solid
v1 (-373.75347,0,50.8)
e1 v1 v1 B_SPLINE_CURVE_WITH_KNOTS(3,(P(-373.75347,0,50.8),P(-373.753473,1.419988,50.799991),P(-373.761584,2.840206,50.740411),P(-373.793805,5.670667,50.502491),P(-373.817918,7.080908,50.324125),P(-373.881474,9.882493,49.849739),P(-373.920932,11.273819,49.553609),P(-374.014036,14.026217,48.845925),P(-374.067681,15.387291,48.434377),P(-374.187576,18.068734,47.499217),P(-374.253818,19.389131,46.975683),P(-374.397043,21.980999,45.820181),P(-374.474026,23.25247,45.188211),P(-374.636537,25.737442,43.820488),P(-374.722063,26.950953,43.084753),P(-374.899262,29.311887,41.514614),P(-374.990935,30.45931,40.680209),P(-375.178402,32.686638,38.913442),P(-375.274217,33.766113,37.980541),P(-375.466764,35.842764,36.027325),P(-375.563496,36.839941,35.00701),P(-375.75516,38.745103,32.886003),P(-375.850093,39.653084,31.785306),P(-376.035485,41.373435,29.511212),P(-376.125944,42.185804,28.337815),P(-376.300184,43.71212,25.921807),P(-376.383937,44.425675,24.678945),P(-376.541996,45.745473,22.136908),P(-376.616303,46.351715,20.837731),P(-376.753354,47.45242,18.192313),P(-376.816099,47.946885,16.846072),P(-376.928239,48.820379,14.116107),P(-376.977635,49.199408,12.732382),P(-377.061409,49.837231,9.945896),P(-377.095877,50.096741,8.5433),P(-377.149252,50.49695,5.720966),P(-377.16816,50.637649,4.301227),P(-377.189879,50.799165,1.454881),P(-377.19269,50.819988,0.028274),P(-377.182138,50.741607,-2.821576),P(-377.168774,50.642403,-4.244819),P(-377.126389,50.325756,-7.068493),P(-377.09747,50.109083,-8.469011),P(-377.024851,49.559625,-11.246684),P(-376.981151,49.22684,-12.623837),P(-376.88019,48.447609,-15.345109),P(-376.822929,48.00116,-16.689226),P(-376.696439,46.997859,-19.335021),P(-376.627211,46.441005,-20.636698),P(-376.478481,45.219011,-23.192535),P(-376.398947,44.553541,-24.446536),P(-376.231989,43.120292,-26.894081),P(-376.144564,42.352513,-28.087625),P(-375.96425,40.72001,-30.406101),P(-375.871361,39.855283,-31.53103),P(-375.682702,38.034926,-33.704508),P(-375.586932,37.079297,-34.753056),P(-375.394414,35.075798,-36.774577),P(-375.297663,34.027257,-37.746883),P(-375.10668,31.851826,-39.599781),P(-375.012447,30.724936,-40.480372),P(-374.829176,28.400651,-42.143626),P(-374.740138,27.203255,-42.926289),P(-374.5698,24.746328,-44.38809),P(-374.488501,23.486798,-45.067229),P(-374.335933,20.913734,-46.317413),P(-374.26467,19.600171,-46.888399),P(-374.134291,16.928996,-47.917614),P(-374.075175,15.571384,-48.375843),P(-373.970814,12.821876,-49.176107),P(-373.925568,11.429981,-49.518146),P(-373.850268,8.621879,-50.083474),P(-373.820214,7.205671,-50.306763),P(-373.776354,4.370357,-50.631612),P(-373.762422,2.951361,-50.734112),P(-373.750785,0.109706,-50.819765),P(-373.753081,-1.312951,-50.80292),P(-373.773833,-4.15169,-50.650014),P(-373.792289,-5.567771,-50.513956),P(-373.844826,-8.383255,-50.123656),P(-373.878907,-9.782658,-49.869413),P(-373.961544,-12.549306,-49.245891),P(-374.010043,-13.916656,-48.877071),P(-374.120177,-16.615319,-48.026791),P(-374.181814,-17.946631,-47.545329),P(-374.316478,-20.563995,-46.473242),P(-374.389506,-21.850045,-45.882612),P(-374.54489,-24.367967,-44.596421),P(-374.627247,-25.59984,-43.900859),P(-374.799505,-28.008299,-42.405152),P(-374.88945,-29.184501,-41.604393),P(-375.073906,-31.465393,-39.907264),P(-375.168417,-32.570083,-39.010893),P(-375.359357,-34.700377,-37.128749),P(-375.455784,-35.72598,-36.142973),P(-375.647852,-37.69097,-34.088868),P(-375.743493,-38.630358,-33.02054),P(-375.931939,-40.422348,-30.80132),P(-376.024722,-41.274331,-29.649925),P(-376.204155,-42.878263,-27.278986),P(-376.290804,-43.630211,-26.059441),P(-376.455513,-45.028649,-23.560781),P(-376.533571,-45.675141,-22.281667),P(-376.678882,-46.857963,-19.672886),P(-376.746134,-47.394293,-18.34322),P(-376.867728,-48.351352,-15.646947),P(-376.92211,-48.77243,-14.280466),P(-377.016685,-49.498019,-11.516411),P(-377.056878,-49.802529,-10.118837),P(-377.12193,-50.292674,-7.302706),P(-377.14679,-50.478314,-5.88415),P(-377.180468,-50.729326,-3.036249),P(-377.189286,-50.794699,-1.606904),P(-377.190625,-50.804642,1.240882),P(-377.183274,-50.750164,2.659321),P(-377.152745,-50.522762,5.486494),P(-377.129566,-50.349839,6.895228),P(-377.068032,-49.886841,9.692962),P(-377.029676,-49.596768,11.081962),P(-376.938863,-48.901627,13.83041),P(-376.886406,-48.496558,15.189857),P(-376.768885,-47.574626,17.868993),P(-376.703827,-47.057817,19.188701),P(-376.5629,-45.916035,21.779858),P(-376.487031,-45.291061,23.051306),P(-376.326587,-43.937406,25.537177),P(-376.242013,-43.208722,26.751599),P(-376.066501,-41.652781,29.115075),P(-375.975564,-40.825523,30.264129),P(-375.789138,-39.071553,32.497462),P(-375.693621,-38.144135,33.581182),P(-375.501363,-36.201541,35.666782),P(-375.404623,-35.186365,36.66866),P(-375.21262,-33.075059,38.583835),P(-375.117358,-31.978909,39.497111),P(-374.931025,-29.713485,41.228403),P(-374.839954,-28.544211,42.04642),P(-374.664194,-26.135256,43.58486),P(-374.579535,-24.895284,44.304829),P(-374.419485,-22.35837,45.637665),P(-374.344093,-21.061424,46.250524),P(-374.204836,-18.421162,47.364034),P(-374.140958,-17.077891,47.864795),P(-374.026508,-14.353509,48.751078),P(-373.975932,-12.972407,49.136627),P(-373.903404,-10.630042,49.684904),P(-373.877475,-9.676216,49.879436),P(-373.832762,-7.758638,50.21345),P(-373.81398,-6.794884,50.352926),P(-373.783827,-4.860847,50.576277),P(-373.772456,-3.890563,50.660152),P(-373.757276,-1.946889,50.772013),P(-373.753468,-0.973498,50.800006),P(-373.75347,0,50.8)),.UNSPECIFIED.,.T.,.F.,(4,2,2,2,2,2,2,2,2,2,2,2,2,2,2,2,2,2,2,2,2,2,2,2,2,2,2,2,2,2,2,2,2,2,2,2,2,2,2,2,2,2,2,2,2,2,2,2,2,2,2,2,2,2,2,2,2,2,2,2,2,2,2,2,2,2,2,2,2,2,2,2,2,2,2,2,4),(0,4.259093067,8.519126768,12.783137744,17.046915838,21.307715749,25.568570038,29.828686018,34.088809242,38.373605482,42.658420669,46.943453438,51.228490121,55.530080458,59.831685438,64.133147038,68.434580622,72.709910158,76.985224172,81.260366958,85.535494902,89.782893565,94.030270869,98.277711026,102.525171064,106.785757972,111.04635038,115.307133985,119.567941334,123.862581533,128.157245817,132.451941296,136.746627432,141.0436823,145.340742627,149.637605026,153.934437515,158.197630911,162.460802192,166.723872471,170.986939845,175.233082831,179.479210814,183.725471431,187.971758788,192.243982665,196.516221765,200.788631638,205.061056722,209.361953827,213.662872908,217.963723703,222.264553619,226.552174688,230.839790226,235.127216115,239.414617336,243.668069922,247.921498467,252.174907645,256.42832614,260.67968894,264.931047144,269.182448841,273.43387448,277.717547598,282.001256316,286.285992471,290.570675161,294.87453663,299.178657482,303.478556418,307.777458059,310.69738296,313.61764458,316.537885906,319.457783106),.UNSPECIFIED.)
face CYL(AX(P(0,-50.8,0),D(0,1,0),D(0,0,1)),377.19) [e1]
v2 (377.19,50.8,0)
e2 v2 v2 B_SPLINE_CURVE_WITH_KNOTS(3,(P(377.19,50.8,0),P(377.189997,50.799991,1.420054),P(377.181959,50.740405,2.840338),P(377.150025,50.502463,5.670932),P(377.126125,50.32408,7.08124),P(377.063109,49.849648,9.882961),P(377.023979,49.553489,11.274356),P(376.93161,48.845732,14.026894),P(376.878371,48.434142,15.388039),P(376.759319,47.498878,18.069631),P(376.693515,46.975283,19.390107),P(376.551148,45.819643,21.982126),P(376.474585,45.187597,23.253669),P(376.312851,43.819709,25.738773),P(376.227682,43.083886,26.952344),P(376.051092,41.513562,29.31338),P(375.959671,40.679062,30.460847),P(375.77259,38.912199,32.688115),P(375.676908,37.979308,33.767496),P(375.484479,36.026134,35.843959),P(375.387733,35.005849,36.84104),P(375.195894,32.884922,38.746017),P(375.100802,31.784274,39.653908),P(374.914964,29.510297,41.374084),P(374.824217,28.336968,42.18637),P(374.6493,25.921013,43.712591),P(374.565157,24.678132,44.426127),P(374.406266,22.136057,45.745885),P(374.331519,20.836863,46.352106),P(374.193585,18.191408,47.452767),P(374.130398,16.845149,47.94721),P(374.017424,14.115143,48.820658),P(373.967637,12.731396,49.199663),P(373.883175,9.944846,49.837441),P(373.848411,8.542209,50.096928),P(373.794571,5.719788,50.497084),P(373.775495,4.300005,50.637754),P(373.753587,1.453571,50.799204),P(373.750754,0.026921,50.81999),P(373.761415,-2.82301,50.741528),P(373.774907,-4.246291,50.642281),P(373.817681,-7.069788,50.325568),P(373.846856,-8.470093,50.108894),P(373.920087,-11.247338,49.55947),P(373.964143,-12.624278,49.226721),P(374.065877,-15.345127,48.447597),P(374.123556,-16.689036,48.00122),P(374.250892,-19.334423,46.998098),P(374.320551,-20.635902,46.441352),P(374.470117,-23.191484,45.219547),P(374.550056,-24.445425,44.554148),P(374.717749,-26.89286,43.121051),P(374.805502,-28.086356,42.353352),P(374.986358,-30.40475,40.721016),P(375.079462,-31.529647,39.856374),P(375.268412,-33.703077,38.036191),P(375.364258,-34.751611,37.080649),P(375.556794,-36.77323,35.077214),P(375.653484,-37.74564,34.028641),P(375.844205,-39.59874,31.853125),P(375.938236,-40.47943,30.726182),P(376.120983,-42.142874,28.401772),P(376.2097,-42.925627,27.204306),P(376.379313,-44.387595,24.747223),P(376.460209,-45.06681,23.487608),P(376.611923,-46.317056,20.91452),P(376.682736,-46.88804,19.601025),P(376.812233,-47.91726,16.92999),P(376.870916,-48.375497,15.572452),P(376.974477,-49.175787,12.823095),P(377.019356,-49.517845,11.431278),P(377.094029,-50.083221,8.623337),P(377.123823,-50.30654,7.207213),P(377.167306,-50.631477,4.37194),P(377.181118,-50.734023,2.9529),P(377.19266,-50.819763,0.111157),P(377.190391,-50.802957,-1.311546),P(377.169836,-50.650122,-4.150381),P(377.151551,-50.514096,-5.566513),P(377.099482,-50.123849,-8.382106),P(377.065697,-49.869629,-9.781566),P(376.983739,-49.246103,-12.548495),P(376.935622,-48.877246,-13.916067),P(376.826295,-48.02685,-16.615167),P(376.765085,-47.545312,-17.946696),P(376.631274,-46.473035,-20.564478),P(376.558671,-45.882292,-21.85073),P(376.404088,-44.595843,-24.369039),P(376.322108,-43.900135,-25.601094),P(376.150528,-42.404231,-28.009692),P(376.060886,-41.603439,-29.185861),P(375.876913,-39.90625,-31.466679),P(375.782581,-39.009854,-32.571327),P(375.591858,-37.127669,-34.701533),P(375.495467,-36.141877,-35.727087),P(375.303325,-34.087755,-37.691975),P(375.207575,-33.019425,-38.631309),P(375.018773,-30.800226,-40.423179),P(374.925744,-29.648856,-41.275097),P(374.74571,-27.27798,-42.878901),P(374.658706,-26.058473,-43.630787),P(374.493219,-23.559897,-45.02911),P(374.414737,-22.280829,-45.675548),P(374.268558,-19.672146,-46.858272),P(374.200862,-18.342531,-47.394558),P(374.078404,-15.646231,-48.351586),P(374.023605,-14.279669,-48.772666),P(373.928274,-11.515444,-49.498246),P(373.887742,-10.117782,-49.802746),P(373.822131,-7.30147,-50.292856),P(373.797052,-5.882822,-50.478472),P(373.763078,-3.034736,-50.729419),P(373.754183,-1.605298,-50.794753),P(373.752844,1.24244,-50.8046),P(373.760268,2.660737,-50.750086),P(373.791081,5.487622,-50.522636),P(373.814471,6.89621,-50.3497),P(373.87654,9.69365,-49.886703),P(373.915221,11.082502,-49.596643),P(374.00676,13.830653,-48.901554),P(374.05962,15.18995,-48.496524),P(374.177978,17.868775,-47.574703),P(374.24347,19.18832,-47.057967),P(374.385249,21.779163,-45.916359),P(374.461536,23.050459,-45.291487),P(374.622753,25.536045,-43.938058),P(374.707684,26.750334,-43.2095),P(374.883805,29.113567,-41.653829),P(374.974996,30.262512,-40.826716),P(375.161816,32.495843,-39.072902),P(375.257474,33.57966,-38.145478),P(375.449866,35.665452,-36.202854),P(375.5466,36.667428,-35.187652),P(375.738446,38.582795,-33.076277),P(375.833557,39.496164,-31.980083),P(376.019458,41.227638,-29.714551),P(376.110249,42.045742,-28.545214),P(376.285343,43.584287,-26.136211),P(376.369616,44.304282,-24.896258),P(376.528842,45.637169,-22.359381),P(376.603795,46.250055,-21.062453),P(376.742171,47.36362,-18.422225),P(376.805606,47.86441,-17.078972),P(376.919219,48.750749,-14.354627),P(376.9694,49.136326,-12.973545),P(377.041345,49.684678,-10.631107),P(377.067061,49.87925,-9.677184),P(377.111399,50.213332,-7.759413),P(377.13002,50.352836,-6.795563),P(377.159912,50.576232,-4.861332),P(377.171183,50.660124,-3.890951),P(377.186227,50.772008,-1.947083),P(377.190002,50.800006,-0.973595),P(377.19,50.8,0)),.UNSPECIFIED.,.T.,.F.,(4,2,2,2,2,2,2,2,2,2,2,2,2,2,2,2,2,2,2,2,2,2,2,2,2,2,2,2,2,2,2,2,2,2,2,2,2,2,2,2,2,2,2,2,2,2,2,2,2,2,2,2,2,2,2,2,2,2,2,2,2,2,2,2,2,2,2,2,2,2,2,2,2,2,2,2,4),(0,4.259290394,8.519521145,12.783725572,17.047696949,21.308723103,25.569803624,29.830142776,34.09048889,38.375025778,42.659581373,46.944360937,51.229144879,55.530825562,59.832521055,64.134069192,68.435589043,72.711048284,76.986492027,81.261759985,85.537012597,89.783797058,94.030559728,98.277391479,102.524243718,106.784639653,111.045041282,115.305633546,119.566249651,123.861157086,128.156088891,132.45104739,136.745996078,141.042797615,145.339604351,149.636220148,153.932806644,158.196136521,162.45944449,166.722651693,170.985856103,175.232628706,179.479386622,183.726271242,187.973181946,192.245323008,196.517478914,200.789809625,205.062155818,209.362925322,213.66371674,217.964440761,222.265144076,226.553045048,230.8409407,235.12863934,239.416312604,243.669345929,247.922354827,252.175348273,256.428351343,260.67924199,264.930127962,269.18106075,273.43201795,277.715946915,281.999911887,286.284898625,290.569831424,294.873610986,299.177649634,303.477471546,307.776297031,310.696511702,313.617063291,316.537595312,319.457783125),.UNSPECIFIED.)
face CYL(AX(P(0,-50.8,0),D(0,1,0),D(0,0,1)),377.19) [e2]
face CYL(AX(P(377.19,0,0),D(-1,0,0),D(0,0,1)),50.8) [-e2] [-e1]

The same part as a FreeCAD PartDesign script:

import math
import FreeCAD as App
import Part
import Sketcher

V = App.Vector
Q = App.Units.Quantity

doc = App.newDocument("Part")
body = doc.addObject("PartDesign::Body", "Body")

# Sketch on YZ plane
sketch1 = body.newObject("Sketcher::SketchObject", "Sketch")
sketch1.AttachmentSupport = (doc.getObject("YZ_Plane"), [""])
sketch1.MapMode = "FlatFace"
sketch1.addGeometry(Part.Circle(V(0, 0, 0), V(0, 0, 1), 50.8), False)
sketch1.addConstraint([
    Sketcher.Constraint("Coincident", 0, 3, -1, 1),
    Sketcher.Constraint("Diameter", 0, Q("4 in")),
])
pad1 = body.newObject("PartDesign::Pad", "Pad")
pad1.Profile = sketch1
pad1.Length = Q("29.7 in")
pad1.Midplane = True

# Sketch on XZ plane
sketch2 = body.newObject("Sketcher::SketchObject", "Sketch001")
sketch2.AttachmentSupport = (doc.getObject("XZ_Plane"), [""])
sketch2.MapMode = "FlatFace"
sketch2.addGeometry([
    Part.LineSegment(V(-373.75347, -50.8, 0), V(-403.126645, -50.8, 0)),  # 0
    Part.LineSegment(V(-403.126645, -50.8, 0), V(-403.126645, 50.8, 0)),  # 1
    Part.LineSegment(V(-403.126645, 50.8, 0), V(-373.75347, 50.8, 0)),  # 2
    Part.ArcOfCircle(Part.Circle(V(0, 0, 0), V(0, 0, 1), 377.19), math.radians(172.259876), math.radians(187.740124)),  # 3
    Part.LineSegment(V(414.154835, -50.8, 0), V(373.75347, -50.8, 0)),  # 4
    Part.ArcOfCircle(Part.Circle(V(0, 0, 0), V(0, 0, 1), 377.19), math.radians(-7.740124), math.radians(0)),  # 5
    Part.ArcOfCircle(Part.Circle(V(0, 0, 0), V(0, 0, 1), 377.19), math.radians(0), math.radians(7.740124)),  # 6
    Part.LineSegment(V(373.75347, 50.8, 0), V(414.154835, 50.8, 0)),  # 7
    Part.LineSegment(V(414.154835, 50.8, 0), V(414.154835, -50.8, 0)),  # 8
], False)
sketch2.addConstraint([
    Sketcher.Constraint("Coincident", 0, 2, 1, 1),
    Sketcher.Constraint("Coincident", 1, 2, 2, 1),
    Sketcher.Constraint("Coincident", 2, 2, 3, 1),
    Sketcher.Constraint("Coincident", 3, 2, 0, 1),
    Sketcher.Constraint("Coincident", 4, 2, 5, 1),
    Sketcher.Constraint("Tangent", 5, 2, 6, 1),
    Sketcher.Constraint("Coincident", 6, 2, 7, 1),
    Sketcher.Constraint("Coincident", 7, 2, 8, 1),
    Sketcher.Constraint("Coincident", 8, 2, 4, 1),
    Sketcher.Constraint("Horizontal", 0),
    Sketcher.Constraint("Vertical", 1),
    Sketcher.Constraint("Horizontal", 2),
    Sketcher.Constraint("Horizontal", 4),
    Sketcher.Constraint("Horizontal", 7),
    Sketcher.Constraint("Vertical", 8),
    Sketcher.Constraint("Coincident", 3, 3, -1, 1),
    Sketcher.Constraint("Coincident", 5, 3, -1, 1),
    Sketcher.Constraint("Equal", 3, 5),
    Sketcher.Constraint("Equal", 5, 6),
    Sketcher.Constraint("PointOnObject", 5, 2, -1),
    Sketcher.Constraint("Horizontal", 3, 2, 4, 2),
    Sketcher.Constraint("Horizontal", 2, 2, 6, 2),
    Sketcher.Constraint("Equal", 0, 2),
    Sketcher.Constraint("DistanceY", 1, 1, 1, 2, Q("4 in")),
    Sketcher.Constraint("Radius", 3, Q("14.85 in")),
    Sketcher.Constraint("DistanceX", 0, 2, 0, 1, Q("29.373176 mm")),
    Sketcher.Constraint("DistanceX", 4, 2, 4, 1, Q("40.401365 mm")),
])
pocket1 = body.newObject("PartDesign::Pocket", "Pocket")
pocket1.Profile = sketch2
pocket1.Type = "ThroughAll"
pocket1.Midplane = True

doc.recompute()
